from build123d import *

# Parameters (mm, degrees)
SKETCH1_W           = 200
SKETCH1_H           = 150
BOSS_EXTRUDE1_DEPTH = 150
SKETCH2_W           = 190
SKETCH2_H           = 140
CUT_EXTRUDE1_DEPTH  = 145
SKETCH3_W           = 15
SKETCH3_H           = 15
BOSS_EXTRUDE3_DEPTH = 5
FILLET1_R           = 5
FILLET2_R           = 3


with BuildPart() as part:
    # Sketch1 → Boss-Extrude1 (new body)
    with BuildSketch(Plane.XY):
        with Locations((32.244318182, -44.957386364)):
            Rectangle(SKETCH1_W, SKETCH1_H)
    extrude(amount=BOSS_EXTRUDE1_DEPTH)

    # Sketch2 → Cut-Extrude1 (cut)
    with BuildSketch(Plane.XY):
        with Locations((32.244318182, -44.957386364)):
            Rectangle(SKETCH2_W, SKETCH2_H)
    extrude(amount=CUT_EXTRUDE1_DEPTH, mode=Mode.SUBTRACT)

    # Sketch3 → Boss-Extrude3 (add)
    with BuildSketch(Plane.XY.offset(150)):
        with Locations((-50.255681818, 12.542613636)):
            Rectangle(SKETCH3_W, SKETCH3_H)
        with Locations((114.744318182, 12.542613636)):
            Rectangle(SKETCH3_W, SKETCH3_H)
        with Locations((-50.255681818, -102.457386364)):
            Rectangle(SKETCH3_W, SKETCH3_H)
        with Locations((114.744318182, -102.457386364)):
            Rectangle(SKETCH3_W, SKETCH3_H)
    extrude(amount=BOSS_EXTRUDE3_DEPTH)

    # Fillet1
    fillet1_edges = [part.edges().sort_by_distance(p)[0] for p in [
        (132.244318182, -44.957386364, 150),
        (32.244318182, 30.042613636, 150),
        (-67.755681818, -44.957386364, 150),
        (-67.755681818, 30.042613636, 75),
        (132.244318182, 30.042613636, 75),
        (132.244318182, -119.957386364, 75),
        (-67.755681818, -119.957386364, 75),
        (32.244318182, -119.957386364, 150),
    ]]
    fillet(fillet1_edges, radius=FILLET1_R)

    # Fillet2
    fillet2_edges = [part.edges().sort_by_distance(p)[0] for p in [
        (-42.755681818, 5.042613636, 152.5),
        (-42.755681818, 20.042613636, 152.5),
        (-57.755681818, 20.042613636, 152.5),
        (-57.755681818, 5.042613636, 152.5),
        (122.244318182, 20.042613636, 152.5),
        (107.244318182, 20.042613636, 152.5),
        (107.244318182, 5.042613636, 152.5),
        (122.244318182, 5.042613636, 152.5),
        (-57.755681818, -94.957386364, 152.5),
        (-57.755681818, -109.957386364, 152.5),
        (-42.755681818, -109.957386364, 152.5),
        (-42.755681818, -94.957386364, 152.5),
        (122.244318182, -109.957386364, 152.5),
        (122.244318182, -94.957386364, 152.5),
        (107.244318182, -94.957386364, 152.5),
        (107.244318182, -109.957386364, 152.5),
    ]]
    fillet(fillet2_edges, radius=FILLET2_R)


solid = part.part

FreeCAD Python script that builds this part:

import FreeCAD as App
import Part
import Sketcher

V = App.Vector
Q = App.Units.Quantity


def edges_at(feature, points):
    """Names of the edges that pass closest to the given points."""
    edges = feature.Shape.Edges
    near = lambda p: min(range(len(edges)), key=lambda i: edges[i].distToShape(Part.Vertex(*p))[0])
    return sorted({f"Edge{near(p) + 1}" for p in points})


def add_polygon(sketch, points):
    """Adds a closed chain of lines whose ends are joined by coincident constraints."""
    first, n = sketch.GeometryCount, len(points)
    for a, b in zip(points, points[1:] + points[:1]):
        sketch.addGeometry(Part.LineSegment(App.Vector(*a, 0), App.Vector(*b, 0)), False)
    for i in range(n):
        sketch.addConstraint(Sketcher.Constraint("Coincident", first + i, 2, first + (i + 1) % n, 1))

doc = App.newDocument("Part")
body = doc.addObject("PartDesign::Body", "Body")

sketch1 = body.newObject("Sketcher::SketchObject", "Sketch")
sketch1.AttachmentSupport = (doc.getObject("XY_Plane"), [""])
sketch1.MapMode = "FlatFace"
add_polygon(sketch1, [(-68, 30), (-68, -120), (132, -120), (132, 30)])
sketch1.addConstraint([
    Sketcher.Constraint("Vertical", 0),
    Sketcher.Constraint("Horizontal", 1),
    Sketcher.Constraint("Vertical", 2),
    Sketcher.Constraint("Horizontal", 3),
    Sketcher.Constraint("DistanceX", 1, 1, 1, 2, Q("200 mm")),
    Sketcher.Constraint("DistanceY", 0, 2, 0, 1, Q("150 mm")),
    Sketcher.Constraint("DistanceX", 0, 2, -1, 1, Q("67.755682 mm")),
    Sketcher.Constraint("DistanceY", 0, 2, -1, 1, Q("119.957386 mm")),
])
pad1 = body.newObject("PartDesign::Pad", "Pad")
pad1.Profile = sketch1
pad1.Length = 150

sketch2 = body.newObject("Sketcher::SketchObject", "Sketch001")
sketch2.AttachmentSupport = (doc.getObject("XY_Plane"), [""])
sketch2.MapMode = "FlatFace"
add_polygon(sketch2, [(-63, 25), (-63, -115), (127, -115), (127, 25)])
sketch2.addConstraint([
    Sketcher.Constraint("Vertical", 0),
    Sketcher.Constraint("Horizontal", 1),
    Sketcher.Constraint("Vertical", 2),
    Sketcher.Constraint("Horizontal", 3),
    Sketcher.Constraint("DistanceX", 1, 1, 1, 2, Q("190 mm")),
    Sketcher.Constraint("DistanceY", 0, 2, 0, 1, Q("140 mm")),
    Sketcher.Constraint("DistanceX", 0, 2, -1, 1, Q("62.755682 mm")),
    Sketcher.Constraint("DistanceY", 0, 2, -1, 1, Q("114.957386 mm")),
])
pocket1 = body.newObject("PartDesign::Pocket", "Pocket")
pocket1.Profile = sketch2
pocket1.Length = 145
pocket1.Reversed = True

sketch3 = body.newObject("Sketcher::SketchObject", "Sketch002")
sketch3.AttachmentSupport = (doc.getObject("XY_Plane"), [""])
sketch3.MapMode = "FlatFace"
sketch3.AttachmentOffset = App.Placement(V(0, 0, 150), App.Rotation())
add_polygon(sketch3, [(-58, 20), (-58, 5), (-43, 5), (-43, 20)])
add_polygon(sketch3, [(107, 20), (107, 5), (122, 5), (122, 20)])
add_polygon(sketch3, [(-58, -95), (-58, -110), (-43, -110), (-43, -95)])
add_polygon(sketch3, [(107, -95), (107, -110), (122, -110), (122, -95)])
sketch3.addConstraint([
    Sketcher.Constraint("Vertical", 0),
    Sketcher.Constraint("Horizontal", 1),
    Sketcher.Constraint("Vertical", 2),
    Sketcher.Constraint("Horizontal", 3),
    Sketcher.Constraint("Vertical", 4),
    Sketcher.Constraint("Horizontal", 5),
    Sketcher.Constraint("Vertical", 6),
    Sketcher.Constraint("Horizontal", 7),
    Sketcher.Constraint("Vertical", 8),
    Sketcher.Constraint("Horizontal", 9),
    Sketcher.Constraint("Vertical", 10),
    Sketcher.Constraint("Horizontal", 11),
    Sketcher.Constraint("Vertical", 12),
    Sketcher.Constraint("Horizontal", 13),
    Sketcher.Constraint("Vertical", 14),
    Sketcher.Constraint("Horizontal", 15),
    Sketcher.Constraint("Horizontal", 1, 2, 4, 2),
    Sketcher.Constraint("Horizontal", 3, 2, 6, 2),
    Sketcher.Constraint("Horizontal", 9, 2, 12, 2),
    Sketcher.Constraint("Horizontal", 11, 2, 14, 2),
    Sketcher.Constraint("Vertical", 3, 2, 8, 2),
    Sketcher.Constraint("Vertical", 2, 2, 9, 2),
    Sketcher.Constraint("Vertical", 7, 2, 12, 2),
    Sketcher.Constraint("Vertical", 6, 2, 13, 2),
    Sketcher.Constraint("Equal", 3, 5),
    Sketcher.Constraint("Equal", 15, 0),
    Sketcher.Constraint("Equal", 6, 8),
    Sketcher.Constraint("DistanceX", 1, 1, 1, 2, Q("15 mm")),
    Sketcher.Constraint("DistanceX", 1, 2, 4, 2, Q("150 mm")),
    Sketcher.Constraint("DistanceY", 8, 2, 0, 2, Q("115 mm")),
    Sketcher.Constraint("DistanceX", 0, 2, -1, 1, Q("57.755682 mm")),
    Sketcher.Constraint("DistanceY", -1, 1, 0, 2, Q("5.042614 mm")),
])
pad2 = body.newObject("PartDesign::Pad", "Pad001")
pad2.Profile = sketch3
pad2.Length = 5
doc.recompute()

fillet = body.newObject("PartDesign::Fillet", "Fillet")
fillet.Base = (pad2, edges_at(pad2, [
    (132.244, -44.957, 150),
    (32.244, 30.043, 150),
    (-67.756, -44.957, 150),
    (-67.756, 30.043, 75),
    (132.244, 30.043, 75),
    (132.244, -119.957, 75),
    (-67.756, -119.957, 75),
    (32.244, -119.957, 150),
]))
fillet.Radius = 5
doc.recompute()

fillet2 = body.newObject("PartDesign::Fillet", "Fillet001")
fillet2.Base = (fillet, edges_at(fillet, [
    (-42.756, 5.043, 152.5),
    (-42.756, 20.043, 152.5),
    (-57.756, 20.043, 152.5),
    (-57.756, 5.043, 152.5),
    (122.244, 20.043, 152.5),
    (107.244, 20.043, 152.5),
    (107.244, 5.043, 152.5),
    (122.244, 5.043, 152.5),
    (-57.756, -94.957, 152.5),
    (-57.756, -109.957, 152.5),
    (-42.756, -109.957, 152.5),
    (-42.756, -94.957, 152.5),
    (122.244, -109.957, 152.5),
    (122.244, -94.957, 152.5),
    (107.244, -94.957, 152.5),
    (107.244, -109.957, 152.5),
]))
fillet2.Radius = 3

doc.recompute()
